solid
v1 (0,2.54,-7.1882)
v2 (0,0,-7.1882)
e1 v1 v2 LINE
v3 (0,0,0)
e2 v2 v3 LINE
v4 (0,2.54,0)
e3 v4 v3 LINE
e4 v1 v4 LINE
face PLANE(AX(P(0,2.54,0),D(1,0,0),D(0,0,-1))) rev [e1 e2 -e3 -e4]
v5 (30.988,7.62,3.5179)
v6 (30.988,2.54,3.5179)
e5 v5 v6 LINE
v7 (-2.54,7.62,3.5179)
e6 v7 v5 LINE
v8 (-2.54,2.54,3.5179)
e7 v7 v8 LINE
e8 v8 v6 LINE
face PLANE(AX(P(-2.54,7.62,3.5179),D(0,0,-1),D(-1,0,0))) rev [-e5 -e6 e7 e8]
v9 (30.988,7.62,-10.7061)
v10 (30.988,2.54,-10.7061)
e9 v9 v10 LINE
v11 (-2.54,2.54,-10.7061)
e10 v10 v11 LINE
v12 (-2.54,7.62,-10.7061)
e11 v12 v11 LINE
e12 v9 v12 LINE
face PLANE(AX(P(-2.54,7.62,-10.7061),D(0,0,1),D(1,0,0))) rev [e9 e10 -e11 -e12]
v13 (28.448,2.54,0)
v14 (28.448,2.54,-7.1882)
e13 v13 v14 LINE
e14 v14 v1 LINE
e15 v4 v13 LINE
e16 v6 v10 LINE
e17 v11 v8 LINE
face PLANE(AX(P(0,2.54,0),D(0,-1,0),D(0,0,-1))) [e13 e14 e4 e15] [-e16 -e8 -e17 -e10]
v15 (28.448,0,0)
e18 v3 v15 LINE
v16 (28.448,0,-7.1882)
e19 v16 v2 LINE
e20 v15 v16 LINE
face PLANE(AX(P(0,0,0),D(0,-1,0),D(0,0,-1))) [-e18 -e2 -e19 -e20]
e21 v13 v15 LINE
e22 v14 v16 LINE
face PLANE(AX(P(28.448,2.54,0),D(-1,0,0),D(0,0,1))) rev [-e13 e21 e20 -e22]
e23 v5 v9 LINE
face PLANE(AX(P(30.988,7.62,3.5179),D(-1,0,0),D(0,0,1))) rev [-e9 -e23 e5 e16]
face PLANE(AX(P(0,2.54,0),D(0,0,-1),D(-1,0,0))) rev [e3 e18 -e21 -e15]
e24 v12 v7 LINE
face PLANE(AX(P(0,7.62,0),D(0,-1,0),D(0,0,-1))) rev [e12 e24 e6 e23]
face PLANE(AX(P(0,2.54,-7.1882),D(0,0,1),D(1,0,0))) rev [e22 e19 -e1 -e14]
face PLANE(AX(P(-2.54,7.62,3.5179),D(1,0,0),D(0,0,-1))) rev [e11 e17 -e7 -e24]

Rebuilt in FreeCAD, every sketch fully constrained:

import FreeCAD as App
import Part
import Sketcher

V = App.Vector
Q = App.Units.Quantity

doc = App.newDocument("Part")
params = doc.addObject("Spreadsheet::Sheet", "Params")
for row, (alias, value) in enumerate([
    ("sketch1_width", "1.12 in"),
    ("sketch1_height", "0.283 in"),
    ("pad1_length", "0.1 in"),
    ("sketch2_width", "1.32 in"),
    ("sketch2_height", "0.56 in"),
    ("pad2_length", "0.2 in"),
], start=1):
    params.set(f"A{row}", alias)
    params.set(f"B{row}", "=" + value)
    params.setAlias(f"B{row}", alias)

body = doc.addObject("PartDesign::Body", "Body")

# Sketch on XZ plane
sketch1 = doc.addObject("Sketcher::SketchObject", "Sketch")
body.addObject(sketch1)
sketch1.AttachmentSupport = (doc.XZ_Plane, [""])
sketch1.MapMode = "FlatFace"
sketch1.addGeometry([
    Part.LineSegment(V(0, -7, 0), V(0, 0, 0)),
    Part.LineSegment(V(0, 0, 0), V(28, 0, 0)),
    Part.LineSegment(V(28, 0, 0), V(28, -7, 0)),
    Part.LineSegment(V(28, -7, 0), V(0, -7, 0)),
], False)
sketch1.addConstraint([
    Sketcher.Constraint("Coincident", 0, 2, 1, 1),
    Sketcher.Constraint("Coincident", 1, 2, 2, 1),
    Sketcher.Constraint("Coincident", 2, 2, 3, 1),
    Sketcher.Constraint("Coincident", 3, 2, 0, 1),
    Sketcher.Constraint("Vertical", 0),
    Sketcher.Constraint("Horizontal", 1),
    Sketcher.Constraint("Vertical", 2),
    Sketcher.Constraint("Horizontal", 3),
    Sketcher.Constraint("Coincident", 0, 2, -1, 1),
    Sketcher.Constraint("DistanceX", 1, 1, 1, 2, Q("1.12 in")),
    Sketcher.Constraint("DistanceY", 0, 1, 0, 2, Q("0.283 in")),
])
sketch1.setExpression("Constraints[9]", "Params.sketch1_width")
sketch1.setExpression("Constraints[10]", "Params.sketch1_height")
pad1 = doc.addObject("PartDesign::Pad", "Pad")
body.addObject(pad1)
pad1.Profile = sketch1
pad1.setExpression("Length", "Params.pad1_length")
pad1.Reversed = True

# Sketch on XZ plane
sketch2 = doc.addObject("Sketcher::SketchObject", "Sketch001")
body.addObject(sketch2)
sketch2.AttachmentSupport = (doc.XZ_Plane, [""])
sketch2.MapMode = "FlatFace"
sketch2.AttachmentOffset = App.Placement(V(0, 0, -0.1 * 25.4), App.Rotation())
sketch2.addGeometry([
    Part.LineSegment(V(-3, -11, 0), V(-3, 4, 0)),
    Part.LineSegment(V(-3, 4, 0), V(31, 4, 0)),
    Part.LineSegment(V(31, 4, 0), V(31, -11, 0)),
    Part.LineSegment(V(31, -11, 0), V(-3, -11, 0)),
], False)
sketch2.addConstraint([
    Sketcher.Constraint("Coincident", 0, 2, 1, 1),
    Sketcher.Constraint("Coincident", 1, 2, 2, 1),
    Sketcher.Constraint("Coincident", 2, 2, 3, 1),
    Sketcher.Constraint("Coincident", 3, 2, 0, 1),
    Sketcher.Constraint("Vertical", 0),
    Sketcher.Constraint("Horizontal", 1),
    Sketcher.Constraint("Vertical", 2),
    Sketcher.Constraint("Horizontal", 3),
    Sketcher.Constraint("DistanceX", 1, 1, 1, 2, Q("1.32 in")),
    Sketcher.Constraint("DistanceY", 0, 1, 0, 2, Q("0.56 in")),
    Sketcher.Constraint("DistanceX", 0, 2, -1, 1, Q("0.1 in")),
    Sketcher.Constraint("DistanceY", -1, 1, 0, 2, Q("0.1385 in")),
])
sketch2.setExpression("Constraints[8]", "Params.sketch2_width")
sketch2.setExpression("Constraints[9]", "Params.sketch2_height")
pad2 = doc.addObject("PartDesign::Pad", "Pad001")
body.addObject(pad2)
pad2.Profile = sketch2
pad2.setExpression("Length", "Params.pad2_length")
pad2.Reversed = True

doc.recompute()
